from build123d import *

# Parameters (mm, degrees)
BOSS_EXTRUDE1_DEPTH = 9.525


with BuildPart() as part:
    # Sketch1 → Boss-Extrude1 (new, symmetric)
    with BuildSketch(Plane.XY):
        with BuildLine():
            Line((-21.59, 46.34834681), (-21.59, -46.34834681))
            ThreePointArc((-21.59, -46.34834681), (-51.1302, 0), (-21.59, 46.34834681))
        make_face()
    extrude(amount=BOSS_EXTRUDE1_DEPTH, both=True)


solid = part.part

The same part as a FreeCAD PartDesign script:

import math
import FreeCAD as App
import Part
import Sketcher
Q = App.Units.Quantity

doc = App.newDocument("Part")
body = doc.addObject("PartDesign::Body", "Body")

# Sketch on XY plane
sketch1 = body.newObject("Sketcher::SketchObject", "Sketch")
sketch1.AttachmentSupport = (doc.getObject("XY_Plane"), [""])
sketch1.MapMode = "FlatFace"
sketch1.addGeometry(Part.LineSegment(App.Vector(-22, -46, 0), App.Vector(-22, 46, 0)), False)
sketch1.addGeometry(Part.ArcOfCircle(Part.Circle(App.Vector(0, 0, 0), App.Vector(0, 0, 1), 51), math.radians(115), math.radians(245)), False)
sketch1.addConstraint(Sketcher.Constraint("Coincident", 0, 1, 1, 2))
sketch1.addConstraint(Sketcher.Constraint("Coincident", 1, 1, 0, 2))
sketch1.addConstraint(Sketcher.Constraint("Vertical", 0))
sketch1.addConstraint(Sketcher.Constraint("Coincident", 1, 3, -1, 1))
sketch1.addConstraint(Sketcher.Constraint("Radius", 1, Q("2.013 in")))
sketch1.addConstraint(Sketcher.Constraint("DistanceX", 0, 1, -1, 1, Q("0.85 in")))
pad1 = body.newObject("PartDesign::Pad", "Pad")
pad1.Profile = sketch1
pad1.Length = Q("0.75 in")
pad1.Midplane = True

doc.recompute()
